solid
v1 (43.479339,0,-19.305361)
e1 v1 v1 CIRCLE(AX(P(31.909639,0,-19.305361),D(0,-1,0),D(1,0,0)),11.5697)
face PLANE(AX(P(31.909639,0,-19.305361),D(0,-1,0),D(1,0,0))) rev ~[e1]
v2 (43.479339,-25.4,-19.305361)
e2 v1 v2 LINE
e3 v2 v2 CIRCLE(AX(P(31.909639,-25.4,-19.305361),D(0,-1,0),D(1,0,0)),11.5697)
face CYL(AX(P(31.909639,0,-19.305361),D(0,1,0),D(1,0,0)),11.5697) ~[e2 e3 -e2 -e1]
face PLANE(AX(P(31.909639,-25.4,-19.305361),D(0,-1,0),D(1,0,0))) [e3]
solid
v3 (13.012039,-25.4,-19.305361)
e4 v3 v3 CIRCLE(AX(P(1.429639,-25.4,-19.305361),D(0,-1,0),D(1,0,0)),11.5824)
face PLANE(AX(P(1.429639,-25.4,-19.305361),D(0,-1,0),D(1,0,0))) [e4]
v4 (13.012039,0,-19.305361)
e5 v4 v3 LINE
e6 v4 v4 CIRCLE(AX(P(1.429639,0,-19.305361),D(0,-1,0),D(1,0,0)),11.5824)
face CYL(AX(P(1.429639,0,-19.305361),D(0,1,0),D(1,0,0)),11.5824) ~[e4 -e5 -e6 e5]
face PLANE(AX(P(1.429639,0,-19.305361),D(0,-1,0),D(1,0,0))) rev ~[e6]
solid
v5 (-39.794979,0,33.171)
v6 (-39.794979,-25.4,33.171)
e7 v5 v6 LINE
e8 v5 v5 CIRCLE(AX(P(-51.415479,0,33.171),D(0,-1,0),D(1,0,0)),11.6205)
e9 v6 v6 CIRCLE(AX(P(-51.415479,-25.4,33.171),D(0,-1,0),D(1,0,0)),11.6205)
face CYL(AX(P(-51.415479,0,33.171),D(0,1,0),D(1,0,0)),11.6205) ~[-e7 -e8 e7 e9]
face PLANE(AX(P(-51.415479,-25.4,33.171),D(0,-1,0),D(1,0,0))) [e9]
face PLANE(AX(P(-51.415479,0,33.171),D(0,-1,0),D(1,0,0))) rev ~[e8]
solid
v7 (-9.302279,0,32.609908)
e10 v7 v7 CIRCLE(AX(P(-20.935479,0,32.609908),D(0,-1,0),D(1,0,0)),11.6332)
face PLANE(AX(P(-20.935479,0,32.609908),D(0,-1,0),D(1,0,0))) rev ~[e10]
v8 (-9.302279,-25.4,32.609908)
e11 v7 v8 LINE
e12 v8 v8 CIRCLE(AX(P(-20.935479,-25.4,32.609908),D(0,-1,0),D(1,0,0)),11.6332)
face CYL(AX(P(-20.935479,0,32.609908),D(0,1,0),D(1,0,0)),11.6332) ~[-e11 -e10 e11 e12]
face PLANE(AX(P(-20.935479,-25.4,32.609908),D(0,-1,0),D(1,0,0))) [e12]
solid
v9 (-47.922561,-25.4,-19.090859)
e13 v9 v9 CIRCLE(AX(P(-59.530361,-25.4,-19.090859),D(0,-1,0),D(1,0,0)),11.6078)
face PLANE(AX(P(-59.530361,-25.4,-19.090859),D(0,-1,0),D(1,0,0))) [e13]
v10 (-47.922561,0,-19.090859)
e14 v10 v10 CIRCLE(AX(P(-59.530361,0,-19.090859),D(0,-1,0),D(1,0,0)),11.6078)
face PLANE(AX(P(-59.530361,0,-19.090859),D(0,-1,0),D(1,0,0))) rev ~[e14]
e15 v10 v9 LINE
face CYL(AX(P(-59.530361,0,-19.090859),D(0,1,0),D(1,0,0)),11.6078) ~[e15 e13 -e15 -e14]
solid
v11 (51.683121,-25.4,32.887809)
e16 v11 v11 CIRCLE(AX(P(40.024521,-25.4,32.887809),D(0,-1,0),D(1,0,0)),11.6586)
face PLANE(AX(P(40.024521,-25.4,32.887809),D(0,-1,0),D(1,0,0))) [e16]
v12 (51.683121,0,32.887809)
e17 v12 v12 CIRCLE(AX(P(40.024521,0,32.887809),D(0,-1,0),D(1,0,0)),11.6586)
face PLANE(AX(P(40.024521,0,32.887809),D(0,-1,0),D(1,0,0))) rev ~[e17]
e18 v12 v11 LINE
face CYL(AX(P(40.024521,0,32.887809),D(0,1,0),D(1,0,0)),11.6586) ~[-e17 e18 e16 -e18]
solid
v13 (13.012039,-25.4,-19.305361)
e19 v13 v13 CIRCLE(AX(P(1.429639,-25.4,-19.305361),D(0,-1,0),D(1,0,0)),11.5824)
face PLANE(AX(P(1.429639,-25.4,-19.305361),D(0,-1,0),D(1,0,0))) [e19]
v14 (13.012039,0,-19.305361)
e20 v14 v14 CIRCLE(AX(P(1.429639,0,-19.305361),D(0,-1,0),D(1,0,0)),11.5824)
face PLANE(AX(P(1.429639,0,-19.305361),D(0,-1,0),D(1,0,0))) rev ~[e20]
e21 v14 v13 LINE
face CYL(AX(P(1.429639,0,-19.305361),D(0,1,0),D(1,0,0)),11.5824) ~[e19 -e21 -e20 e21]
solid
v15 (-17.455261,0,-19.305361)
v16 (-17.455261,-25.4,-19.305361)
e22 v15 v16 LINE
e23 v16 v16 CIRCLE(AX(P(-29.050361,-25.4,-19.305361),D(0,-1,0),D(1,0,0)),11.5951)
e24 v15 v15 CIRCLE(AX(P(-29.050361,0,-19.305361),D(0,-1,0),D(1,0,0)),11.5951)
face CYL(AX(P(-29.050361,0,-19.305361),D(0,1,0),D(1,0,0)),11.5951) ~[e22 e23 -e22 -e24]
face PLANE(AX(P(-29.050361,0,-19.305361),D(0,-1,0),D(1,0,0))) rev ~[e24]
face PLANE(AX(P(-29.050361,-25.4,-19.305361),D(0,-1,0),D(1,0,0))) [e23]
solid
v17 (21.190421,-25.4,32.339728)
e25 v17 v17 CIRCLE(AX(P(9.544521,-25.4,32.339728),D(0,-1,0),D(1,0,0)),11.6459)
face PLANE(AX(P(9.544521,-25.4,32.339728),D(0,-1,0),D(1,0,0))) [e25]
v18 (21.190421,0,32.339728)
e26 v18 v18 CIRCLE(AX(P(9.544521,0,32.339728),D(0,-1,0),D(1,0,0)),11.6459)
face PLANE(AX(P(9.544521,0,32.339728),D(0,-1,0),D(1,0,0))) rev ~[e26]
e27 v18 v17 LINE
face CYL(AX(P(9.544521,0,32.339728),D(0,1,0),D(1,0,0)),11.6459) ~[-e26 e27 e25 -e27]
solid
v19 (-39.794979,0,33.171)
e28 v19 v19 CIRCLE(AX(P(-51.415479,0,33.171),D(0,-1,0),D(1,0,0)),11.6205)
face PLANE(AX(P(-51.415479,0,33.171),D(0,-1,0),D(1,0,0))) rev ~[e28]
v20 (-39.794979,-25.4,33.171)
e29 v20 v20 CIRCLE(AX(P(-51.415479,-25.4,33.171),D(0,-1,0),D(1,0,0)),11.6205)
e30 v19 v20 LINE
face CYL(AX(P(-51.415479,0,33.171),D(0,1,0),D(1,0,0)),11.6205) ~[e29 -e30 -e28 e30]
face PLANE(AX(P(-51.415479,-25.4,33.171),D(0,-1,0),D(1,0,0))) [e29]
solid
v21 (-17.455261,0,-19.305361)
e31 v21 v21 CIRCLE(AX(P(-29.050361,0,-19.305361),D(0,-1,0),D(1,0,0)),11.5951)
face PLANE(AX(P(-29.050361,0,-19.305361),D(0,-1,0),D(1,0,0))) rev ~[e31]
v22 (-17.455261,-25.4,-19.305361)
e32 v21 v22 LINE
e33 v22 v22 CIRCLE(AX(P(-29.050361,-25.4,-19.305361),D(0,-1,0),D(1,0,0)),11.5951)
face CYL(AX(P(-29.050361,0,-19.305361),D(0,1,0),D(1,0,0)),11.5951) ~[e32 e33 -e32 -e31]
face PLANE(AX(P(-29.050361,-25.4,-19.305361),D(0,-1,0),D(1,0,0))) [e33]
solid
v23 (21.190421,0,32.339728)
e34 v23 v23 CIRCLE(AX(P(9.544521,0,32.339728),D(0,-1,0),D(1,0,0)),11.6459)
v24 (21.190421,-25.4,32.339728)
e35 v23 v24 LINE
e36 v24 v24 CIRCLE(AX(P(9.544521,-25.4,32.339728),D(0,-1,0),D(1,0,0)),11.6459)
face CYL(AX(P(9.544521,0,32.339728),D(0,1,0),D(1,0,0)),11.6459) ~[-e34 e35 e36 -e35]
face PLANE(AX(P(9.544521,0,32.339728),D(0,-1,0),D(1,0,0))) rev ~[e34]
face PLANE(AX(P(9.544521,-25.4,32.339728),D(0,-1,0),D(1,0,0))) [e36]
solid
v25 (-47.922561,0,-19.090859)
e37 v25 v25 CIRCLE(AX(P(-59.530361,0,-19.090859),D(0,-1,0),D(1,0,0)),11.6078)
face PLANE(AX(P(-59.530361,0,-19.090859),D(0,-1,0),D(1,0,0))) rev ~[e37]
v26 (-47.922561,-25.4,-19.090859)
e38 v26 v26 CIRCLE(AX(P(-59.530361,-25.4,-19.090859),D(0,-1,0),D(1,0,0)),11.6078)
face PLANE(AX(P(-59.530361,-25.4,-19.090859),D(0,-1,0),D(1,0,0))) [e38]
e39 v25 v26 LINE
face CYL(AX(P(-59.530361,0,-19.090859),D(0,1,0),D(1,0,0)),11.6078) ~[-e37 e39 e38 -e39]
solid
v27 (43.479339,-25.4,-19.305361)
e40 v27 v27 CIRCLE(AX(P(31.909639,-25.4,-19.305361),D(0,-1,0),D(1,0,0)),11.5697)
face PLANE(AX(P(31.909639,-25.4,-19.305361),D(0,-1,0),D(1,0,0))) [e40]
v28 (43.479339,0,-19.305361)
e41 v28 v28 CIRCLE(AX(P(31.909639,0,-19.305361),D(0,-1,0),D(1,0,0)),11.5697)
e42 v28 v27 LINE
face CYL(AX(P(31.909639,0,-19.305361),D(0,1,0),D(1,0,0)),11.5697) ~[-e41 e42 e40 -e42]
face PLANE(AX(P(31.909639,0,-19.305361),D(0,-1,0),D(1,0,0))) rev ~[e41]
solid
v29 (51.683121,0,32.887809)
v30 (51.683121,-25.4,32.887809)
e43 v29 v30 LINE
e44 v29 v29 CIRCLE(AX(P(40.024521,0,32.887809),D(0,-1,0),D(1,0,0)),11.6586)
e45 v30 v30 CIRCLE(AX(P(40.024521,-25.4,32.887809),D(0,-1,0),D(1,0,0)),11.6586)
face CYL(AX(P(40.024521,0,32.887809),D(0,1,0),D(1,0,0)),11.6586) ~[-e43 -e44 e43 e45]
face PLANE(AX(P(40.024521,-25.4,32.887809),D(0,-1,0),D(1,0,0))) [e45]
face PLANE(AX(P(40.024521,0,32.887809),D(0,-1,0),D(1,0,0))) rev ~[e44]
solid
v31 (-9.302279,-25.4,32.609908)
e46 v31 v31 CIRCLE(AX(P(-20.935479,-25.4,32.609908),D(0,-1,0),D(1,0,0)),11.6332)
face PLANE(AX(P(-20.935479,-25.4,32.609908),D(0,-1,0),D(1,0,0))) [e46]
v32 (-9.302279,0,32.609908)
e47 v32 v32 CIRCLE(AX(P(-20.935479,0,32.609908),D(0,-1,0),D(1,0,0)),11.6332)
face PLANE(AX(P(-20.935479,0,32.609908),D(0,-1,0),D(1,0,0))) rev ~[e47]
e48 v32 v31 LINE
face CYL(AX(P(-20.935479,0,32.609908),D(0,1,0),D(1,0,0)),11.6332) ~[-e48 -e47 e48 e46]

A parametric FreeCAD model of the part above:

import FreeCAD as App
import Part
import Sketcher

V = App.Vector
Q = App.Units.Quantity

doc = App.newDocument("Part")
params = doc.addObject("Spreadsheet::Sheet", "Params")
for row, (alias, value) in enumerate([
    ("sketch1_diameter", "0.916 in"),
    ("sketch1_diameter2", "0.917 in"),
    ("sketch1_diameter3", "0.915 in"),
    ("sketch1_diameter4", "0.918 in"),
    ("sketch1_diameter5", "0.914 in"),
    ("pad1_length", "1 in"),
    ("sketch2_diameter", "0.916 in"),
    ("sketch2_diameter2", "0.917 in"),
    ("sketch2_diameter3", "0.915 in"),
    ("sketch2_diameter4", "0.918 in"),
    ("sketch2_diameter5", "0.914 in"),
    ("pad2_length", "1 in"),
], start=1):
    params.set(f"A{row}", alias)
    params.set(f"B{row}", "=" + value)
    params.setAlias(f"B{row}", alias)

body = doc.addObject("PartDesign::Body", "Body")
body.AllowCompound = True

sketch1 = body.newObject("Sketcher::SketchObject", "Sketch")
sketch1.AttachmentSupport = (doc.getObject("XZ_Plane"), [""])
sketch1.MapMode = "FlatFace"
sketch1.addGeometry([
    Part.Circle(V(-21, 33, 0), V(0, 0, 1), 12),
    Part.Circle(V(10, 32, 0), V(0, 0, 1), 12),
    Part.Circle(V(-51, 33, 0), V(0, 0, 1), 12),
    Part.Circle(V(40, 33, 0), V(0, 0, 1), 12),
    Part.Circle(V(-60, -19, 0), V(0, 0, 1), 12),
    Part.Circle(V(-29, -19, 0), V(0, 0, 1), 12),
    Part.Circle(V(1, -19, 0), V(0, 0, 1), 12),
    Part.Circle(V(32, -19, 0), V(0, 0, 1), 12),
], False)
sketch1.addConstraint([
    Sketcher.Constraint("Horizontal", 5, 3, 6, 3),
    Sketcher.Constraint("Horizontal", 6, 3, 7, 3),
    Sketcher.Constraint("Diameter", 0, Q("0.916 in")),
    Sketcher.Constraint("Diameter", 1, Q("0.917 in")),
    Sketcher.Constraint("Diameter", 2, Q("0.915 in")),
    Sketcher.Constraint("Diameter", 3, Q("0.918 in")),
    Sketcher.Constraint("Diameter", 4, Q("0.914 in")),
    Sketcher.Constraint("Diameter", 5, Q("0.913 in")),
    Sketcher.Constraint("Diameter", 6, Q("0.912 in")),
    Sketcher.Constraint("Diameter", 7, Q("0.911 in")),
    Sketcher.Constraint("DistanceX", 0, 3, 1, 3, Q("1.2 in")),
    Sketcher.Constraint("DistanceX", 2, 3, 0, 3, Q("1.2 in")),
    Sketcher.Constraint("DistanceX", 1, 3, 3, 3, Q("1.2 in")),
    Sketcher.Constraint("DistanceX", 4, 3, 5, 3, Q("1.2 in")),
    Sketcher.Constraint("DistanceX", 5, 3, 6, 3, Q("1.2 in")),
    Sketcher.Constraint("DistanceX", 6, 3, 7, 3, Q("1.2 in")),
    Sketcher.Constraint("DistanceY", -1, 1, 2, 3, Q("33.171 mm")),
    Sketcher.Constraint("DistanceY", 0, 3, 3, 3, Q("0.277901 mm")),
    Sketcher.Constraint("DistanceX", 0, 3, -1, 1, Q("20.935479 mm")),
    Sketcher.Constraint("DistanceY", -1, 1, 3, 3, Q("32.887809 mm")),
    Sketcher.Constraint("DistanceX", 4, 3, -1, 1, Q("59.530361 mm")),
    Sketcher.Constraint("DistanceY", 4, 3, -1, 1, Q("19.090859 mm")),
    Sketcher.Constraint("DistanceY", 5, 3, -1, 1, Q("19.305361 mm")),
    Sketcher.Constraint("DistanceY", 1, 3, 0, 3, Q("0.27018 mm")),
])
sketch1.setExpression("Constraints[2]", "Params.sketch1_diameter")
sketch1.setExpression("Constraints[3]", "Params.sketch1_diameter2")
sketch1.setExpression("Constraints[4]", "Params.sketch1_diameter3")
sketch1.setExpression("Constraints[5]", "Params.sketch1_diameter4")
sketch1.setExpression("Constraints[6]", "Params.sketch1_diameter5")
pad1 = body.newObject("PartDesign::Pad", "Pad")
pad1.Profile = sketch1
pad1.setExpression("Length", "Params.pad1_length")
body2 = doc.addObject("PartDesign::Body", "Body001")
body2.AllowCompound = True

sketch2 = body2.newObject("Sketcher::SketchObject", "Sketch001")
sketch2.AttachmentSupport = (doc.getObject("XZ_Plane001"), [""])
sketch2.MapMode = "FlatFace"
sketch2.addGeometry([
    Part.Circle(V(-21, 33, 0), V(0, 0, 1), 12),
    Part.Circle(V(10, 32, 0), V(0, 0, 1), 12),
    Part.Circle(V(-51, 33, 0), V(0, 0, 1), 12),
    Part.Circle(V(40, 33, 0), V(0, 0, 1), 12),
    Part.Circle(V(-60, -19, 0), V(0, 0, 1), 12),
    Part.Circle(V(-29, -19, 0), V(0, 0, 1), 12),
    Part.Circle(V(1, -19, 0), V(0, 0, 1), 12),
    Part.Circle(V(32, -19, 0), V(0, 0, 1), 12),
], False)
sketch2.addConstraint([
    Sketcher.Constraint("Horizontal", 5, 3, 6, 3),
    Sketcher.Constraint("Horizontal", 6, 3, 7, 3),
    Sketcher.Constraint("Diameter", 0, Q("0.916 in")),
    Sketcher.Constraint("Diameter", 1, Q("0.917 in")),
    Sketcher.Constraint("Diameter", 2, Q("0.915 in")),
    Sketcher.Constraint("Diameter", 3, Q("0.918 in")),
    Sketcher.Constraint("Diameter", 4, Q("0.914 in")),
    Sketcher.Constraint("Diameter", 5, Q("0.913 in")),
    Sketcher.Constraint("Diameter", 6, Q("0.912 in")),
    Sketcher.Constraint("Diameter", 7, Q("0.911 in")),
    Sketcher.Constraint("DistanceX", 0, 3, 1, 3, Q("1.2 in")),
    Sketcher.Constraint("DistanceX", 2, 3, 0, 3, Q("1.2 in")),
    Sketcher.Constraint("DistanceX", 1, 3, 3, 3, Q("1.2 in")),
    Sketcher.Constraint("DistanceX", 4, 3, 5, 3, Q("1.2 in")),
    Sketcher.Constraint("DistanceX", 5, 3, 6, 3, Q("1.2 in")),
    Sketcher.Constraint("DistanceX", 6, 3, 7, 3, Q("1.2 in")),
    Sketcher.Constraint("DistanceY", -1, 1, 2, 3, Q("33.171 mm")),
    Sketcher.Constraint("DistanceY", 0, 3, 3, 3, Q("0.277901 mm")),
    Sketcher.Constraint("DistanceX", 0, 3, -1, 1, Q("20.935479 mm")),
    Sketcher.Constraint("DistanceY", -1, 1, 3, 3, Q("32.887809 mm")),
    Sketcher.Constraint("DistanceX", 4, 3, -1, 1, Q("59.530361 mm")),
    Sketcher.Constraint("DistanceY", 4, 3, -1, 1, Q("19.090859 mm")),
    Sketcher.Constraint("DistanceY", 5, 3, -1, 1, Q("19.305361 mm")),
    Sketcher.Constraint("DistanceY", 1, 3, 0, 3, Q("0.27018 mm")),
])
sketch2.setExpression("Constraints[2]", "Params.sketch2_diameter")
sketch2.setExpression("Constraints[3]", "Params.sketch2_diameter2")
sketch2.setExpression("Constraints[4]", "Params.sketch2_diameter3")
sketch2.setExpression("Constraints[5]", "Params.sketch2_diameter4")
sketch2.setExpression("Constraints[6]", "Params.sketch2_diameter5")
pad2 = body2.newObject("PartDesign::Pad", "Pad001")
pad2.Profile = sketch2
pad2.setExpression("Length", "Params.pad2_length")

doc.recompute()
